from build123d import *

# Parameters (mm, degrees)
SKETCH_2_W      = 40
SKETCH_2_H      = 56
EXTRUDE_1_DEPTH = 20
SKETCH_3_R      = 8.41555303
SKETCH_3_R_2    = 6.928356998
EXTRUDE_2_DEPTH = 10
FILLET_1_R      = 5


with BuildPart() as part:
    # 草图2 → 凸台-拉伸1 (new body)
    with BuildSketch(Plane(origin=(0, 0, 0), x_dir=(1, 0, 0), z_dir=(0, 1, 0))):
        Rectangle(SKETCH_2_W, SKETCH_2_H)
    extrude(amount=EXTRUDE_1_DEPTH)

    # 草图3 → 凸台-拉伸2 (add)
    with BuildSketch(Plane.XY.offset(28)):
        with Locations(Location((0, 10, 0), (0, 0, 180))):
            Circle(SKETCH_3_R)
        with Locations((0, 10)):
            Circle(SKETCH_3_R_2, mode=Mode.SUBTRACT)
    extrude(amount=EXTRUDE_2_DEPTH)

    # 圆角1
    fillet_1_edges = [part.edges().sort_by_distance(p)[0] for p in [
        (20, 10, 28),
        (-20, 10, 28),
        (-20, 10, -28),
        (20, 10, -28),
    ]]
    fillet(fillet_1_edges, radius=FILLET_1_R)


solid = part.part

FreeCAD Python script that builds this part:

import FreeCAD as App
import Part
import Sketcher
Q = App.Units.Quantity


def edges_at(feature, points):
    """Names of the edges that pass closest to the given points."""
    edges = feature.Shape.Edges
    near = lambda p: min(range(len(edges)), key=lambda i: edges[i].distToShape(Part.Vertex(*p))[0])
    return sorted({f"Edge{near(p) + 1}" for p in points})

doc = App.newDocument("Part")
body = doc.addObject("PartDesign::Body", "Body")

# Sketch on XZ plane
sketch1 = doc.addObject("Sketcher::SketchObject", "Sketch")
body.addObject(sketch1)
sketch1.AttachmentSupport = (doc.XZ_Plane, [""])
sketch1.MapMode = "FlatFace"
sketch1.addGeometry([
    Part.LineSegment(App.Vector(-20, -28, 0), App.Vector(-20, 28, 0)),
    Part.LineSegment(App.Vector(-20, 28, 0), App.Vector(20, 28, 0)),
    Part.LineSegment(App.Vector(20, 28, 0), App.Vector(20, -28, 0)),
    Part.LineSegment(App.Vector(20, -28, 0), App.Vector(-20, -28, 0)),
], False)
sketch1.addConstraint([
    Sketcher.Constraint("Coincident", 0, 2, 1, 1),
    Sketcher.Constraint("Coincident", 1, 2, 2, 1),
    Sketcher.Constraint("Coincident", 2, 2, 3, 1),
    Sketcher.Constraint("Coincident", 3, 2, 0, 1),
    Sketcher.Constraint("Vertical", 0),
    Sketcher.Constraint("Horizontal", 1),
    Sketcher.Constraint("Vertical", 2),
    Sketcher.Constraint("Horizontal", 3),
    Sketcher.Constraint("Symmetric", 0, 2, 2, 2, -1, 1),
    Sketcher.Constraint("DistanceX", 1, 1, 1, 2, Q("40 mm")),
    Sketcher.Constraint("DistanceY", 0, 1, 0, 2, Q("56 mm")),
])
pad1 = doc.addObject("PartDesign::Pad", "Pad")
body.addObject(pad1)
pad1.Profile = sketch1
pad1.Length = 20
pad1.Reversed = True

# Sketch on XY plane
sketch2 = doc.addObject("Sketcher::SketchObject", "Sketch001")
body.addObject(sketch2)
sketch2.AttachmentSupport = (doc.XY_Plane, [""])
sketch2.MapMode = "FlatFace"
sketch2.AttachmentOffset = App.Placement(App.Vector(0, 0, 28), App.Rotation())
sketch2.addGeometry([
    Part.Circle(App.Vector(0, 10, 0), App.Vector(0, 0, 1), 8),
    Part.Circle(App.Vector(0, 10, 0), App.Vector(0, 0, 1), 7),
], False)
sketch2.addConstraint([
    Sketcher.Constraint("Coincident", 1, 3, 0, 3),
    Sketcher.Constraint("PointOnObject", 0, 3, -2),
    Sketcher.Constraint("DistanceY", -1, 1, 0, 3, Q("10 mm")),
    Sketcher.Constraint("Diameter", 0, Q("16.831106 mm")),
    Sketcher.Constraint("Diameter", 1, Q("13.856714 mm")),
])
pad2 = doc.addObject("PartDesign::Pad", "Pad001")
body.addObject(pad2)
pad2.Profile = sketch2
pad2.Length = 10
doc.recompute()

fillet = doc.addObject("PartDesign::Fillet", "Fillet")
body.addObject(fillet)
fillet.Base = (pad2, edges_at(pad2, [
    (20, 10, 28),
    (-20, 10, 28),
    (-20, 10, -28),
    (20, 10, -28),
]))
fillet.Radius = 5

doc.recompute()
